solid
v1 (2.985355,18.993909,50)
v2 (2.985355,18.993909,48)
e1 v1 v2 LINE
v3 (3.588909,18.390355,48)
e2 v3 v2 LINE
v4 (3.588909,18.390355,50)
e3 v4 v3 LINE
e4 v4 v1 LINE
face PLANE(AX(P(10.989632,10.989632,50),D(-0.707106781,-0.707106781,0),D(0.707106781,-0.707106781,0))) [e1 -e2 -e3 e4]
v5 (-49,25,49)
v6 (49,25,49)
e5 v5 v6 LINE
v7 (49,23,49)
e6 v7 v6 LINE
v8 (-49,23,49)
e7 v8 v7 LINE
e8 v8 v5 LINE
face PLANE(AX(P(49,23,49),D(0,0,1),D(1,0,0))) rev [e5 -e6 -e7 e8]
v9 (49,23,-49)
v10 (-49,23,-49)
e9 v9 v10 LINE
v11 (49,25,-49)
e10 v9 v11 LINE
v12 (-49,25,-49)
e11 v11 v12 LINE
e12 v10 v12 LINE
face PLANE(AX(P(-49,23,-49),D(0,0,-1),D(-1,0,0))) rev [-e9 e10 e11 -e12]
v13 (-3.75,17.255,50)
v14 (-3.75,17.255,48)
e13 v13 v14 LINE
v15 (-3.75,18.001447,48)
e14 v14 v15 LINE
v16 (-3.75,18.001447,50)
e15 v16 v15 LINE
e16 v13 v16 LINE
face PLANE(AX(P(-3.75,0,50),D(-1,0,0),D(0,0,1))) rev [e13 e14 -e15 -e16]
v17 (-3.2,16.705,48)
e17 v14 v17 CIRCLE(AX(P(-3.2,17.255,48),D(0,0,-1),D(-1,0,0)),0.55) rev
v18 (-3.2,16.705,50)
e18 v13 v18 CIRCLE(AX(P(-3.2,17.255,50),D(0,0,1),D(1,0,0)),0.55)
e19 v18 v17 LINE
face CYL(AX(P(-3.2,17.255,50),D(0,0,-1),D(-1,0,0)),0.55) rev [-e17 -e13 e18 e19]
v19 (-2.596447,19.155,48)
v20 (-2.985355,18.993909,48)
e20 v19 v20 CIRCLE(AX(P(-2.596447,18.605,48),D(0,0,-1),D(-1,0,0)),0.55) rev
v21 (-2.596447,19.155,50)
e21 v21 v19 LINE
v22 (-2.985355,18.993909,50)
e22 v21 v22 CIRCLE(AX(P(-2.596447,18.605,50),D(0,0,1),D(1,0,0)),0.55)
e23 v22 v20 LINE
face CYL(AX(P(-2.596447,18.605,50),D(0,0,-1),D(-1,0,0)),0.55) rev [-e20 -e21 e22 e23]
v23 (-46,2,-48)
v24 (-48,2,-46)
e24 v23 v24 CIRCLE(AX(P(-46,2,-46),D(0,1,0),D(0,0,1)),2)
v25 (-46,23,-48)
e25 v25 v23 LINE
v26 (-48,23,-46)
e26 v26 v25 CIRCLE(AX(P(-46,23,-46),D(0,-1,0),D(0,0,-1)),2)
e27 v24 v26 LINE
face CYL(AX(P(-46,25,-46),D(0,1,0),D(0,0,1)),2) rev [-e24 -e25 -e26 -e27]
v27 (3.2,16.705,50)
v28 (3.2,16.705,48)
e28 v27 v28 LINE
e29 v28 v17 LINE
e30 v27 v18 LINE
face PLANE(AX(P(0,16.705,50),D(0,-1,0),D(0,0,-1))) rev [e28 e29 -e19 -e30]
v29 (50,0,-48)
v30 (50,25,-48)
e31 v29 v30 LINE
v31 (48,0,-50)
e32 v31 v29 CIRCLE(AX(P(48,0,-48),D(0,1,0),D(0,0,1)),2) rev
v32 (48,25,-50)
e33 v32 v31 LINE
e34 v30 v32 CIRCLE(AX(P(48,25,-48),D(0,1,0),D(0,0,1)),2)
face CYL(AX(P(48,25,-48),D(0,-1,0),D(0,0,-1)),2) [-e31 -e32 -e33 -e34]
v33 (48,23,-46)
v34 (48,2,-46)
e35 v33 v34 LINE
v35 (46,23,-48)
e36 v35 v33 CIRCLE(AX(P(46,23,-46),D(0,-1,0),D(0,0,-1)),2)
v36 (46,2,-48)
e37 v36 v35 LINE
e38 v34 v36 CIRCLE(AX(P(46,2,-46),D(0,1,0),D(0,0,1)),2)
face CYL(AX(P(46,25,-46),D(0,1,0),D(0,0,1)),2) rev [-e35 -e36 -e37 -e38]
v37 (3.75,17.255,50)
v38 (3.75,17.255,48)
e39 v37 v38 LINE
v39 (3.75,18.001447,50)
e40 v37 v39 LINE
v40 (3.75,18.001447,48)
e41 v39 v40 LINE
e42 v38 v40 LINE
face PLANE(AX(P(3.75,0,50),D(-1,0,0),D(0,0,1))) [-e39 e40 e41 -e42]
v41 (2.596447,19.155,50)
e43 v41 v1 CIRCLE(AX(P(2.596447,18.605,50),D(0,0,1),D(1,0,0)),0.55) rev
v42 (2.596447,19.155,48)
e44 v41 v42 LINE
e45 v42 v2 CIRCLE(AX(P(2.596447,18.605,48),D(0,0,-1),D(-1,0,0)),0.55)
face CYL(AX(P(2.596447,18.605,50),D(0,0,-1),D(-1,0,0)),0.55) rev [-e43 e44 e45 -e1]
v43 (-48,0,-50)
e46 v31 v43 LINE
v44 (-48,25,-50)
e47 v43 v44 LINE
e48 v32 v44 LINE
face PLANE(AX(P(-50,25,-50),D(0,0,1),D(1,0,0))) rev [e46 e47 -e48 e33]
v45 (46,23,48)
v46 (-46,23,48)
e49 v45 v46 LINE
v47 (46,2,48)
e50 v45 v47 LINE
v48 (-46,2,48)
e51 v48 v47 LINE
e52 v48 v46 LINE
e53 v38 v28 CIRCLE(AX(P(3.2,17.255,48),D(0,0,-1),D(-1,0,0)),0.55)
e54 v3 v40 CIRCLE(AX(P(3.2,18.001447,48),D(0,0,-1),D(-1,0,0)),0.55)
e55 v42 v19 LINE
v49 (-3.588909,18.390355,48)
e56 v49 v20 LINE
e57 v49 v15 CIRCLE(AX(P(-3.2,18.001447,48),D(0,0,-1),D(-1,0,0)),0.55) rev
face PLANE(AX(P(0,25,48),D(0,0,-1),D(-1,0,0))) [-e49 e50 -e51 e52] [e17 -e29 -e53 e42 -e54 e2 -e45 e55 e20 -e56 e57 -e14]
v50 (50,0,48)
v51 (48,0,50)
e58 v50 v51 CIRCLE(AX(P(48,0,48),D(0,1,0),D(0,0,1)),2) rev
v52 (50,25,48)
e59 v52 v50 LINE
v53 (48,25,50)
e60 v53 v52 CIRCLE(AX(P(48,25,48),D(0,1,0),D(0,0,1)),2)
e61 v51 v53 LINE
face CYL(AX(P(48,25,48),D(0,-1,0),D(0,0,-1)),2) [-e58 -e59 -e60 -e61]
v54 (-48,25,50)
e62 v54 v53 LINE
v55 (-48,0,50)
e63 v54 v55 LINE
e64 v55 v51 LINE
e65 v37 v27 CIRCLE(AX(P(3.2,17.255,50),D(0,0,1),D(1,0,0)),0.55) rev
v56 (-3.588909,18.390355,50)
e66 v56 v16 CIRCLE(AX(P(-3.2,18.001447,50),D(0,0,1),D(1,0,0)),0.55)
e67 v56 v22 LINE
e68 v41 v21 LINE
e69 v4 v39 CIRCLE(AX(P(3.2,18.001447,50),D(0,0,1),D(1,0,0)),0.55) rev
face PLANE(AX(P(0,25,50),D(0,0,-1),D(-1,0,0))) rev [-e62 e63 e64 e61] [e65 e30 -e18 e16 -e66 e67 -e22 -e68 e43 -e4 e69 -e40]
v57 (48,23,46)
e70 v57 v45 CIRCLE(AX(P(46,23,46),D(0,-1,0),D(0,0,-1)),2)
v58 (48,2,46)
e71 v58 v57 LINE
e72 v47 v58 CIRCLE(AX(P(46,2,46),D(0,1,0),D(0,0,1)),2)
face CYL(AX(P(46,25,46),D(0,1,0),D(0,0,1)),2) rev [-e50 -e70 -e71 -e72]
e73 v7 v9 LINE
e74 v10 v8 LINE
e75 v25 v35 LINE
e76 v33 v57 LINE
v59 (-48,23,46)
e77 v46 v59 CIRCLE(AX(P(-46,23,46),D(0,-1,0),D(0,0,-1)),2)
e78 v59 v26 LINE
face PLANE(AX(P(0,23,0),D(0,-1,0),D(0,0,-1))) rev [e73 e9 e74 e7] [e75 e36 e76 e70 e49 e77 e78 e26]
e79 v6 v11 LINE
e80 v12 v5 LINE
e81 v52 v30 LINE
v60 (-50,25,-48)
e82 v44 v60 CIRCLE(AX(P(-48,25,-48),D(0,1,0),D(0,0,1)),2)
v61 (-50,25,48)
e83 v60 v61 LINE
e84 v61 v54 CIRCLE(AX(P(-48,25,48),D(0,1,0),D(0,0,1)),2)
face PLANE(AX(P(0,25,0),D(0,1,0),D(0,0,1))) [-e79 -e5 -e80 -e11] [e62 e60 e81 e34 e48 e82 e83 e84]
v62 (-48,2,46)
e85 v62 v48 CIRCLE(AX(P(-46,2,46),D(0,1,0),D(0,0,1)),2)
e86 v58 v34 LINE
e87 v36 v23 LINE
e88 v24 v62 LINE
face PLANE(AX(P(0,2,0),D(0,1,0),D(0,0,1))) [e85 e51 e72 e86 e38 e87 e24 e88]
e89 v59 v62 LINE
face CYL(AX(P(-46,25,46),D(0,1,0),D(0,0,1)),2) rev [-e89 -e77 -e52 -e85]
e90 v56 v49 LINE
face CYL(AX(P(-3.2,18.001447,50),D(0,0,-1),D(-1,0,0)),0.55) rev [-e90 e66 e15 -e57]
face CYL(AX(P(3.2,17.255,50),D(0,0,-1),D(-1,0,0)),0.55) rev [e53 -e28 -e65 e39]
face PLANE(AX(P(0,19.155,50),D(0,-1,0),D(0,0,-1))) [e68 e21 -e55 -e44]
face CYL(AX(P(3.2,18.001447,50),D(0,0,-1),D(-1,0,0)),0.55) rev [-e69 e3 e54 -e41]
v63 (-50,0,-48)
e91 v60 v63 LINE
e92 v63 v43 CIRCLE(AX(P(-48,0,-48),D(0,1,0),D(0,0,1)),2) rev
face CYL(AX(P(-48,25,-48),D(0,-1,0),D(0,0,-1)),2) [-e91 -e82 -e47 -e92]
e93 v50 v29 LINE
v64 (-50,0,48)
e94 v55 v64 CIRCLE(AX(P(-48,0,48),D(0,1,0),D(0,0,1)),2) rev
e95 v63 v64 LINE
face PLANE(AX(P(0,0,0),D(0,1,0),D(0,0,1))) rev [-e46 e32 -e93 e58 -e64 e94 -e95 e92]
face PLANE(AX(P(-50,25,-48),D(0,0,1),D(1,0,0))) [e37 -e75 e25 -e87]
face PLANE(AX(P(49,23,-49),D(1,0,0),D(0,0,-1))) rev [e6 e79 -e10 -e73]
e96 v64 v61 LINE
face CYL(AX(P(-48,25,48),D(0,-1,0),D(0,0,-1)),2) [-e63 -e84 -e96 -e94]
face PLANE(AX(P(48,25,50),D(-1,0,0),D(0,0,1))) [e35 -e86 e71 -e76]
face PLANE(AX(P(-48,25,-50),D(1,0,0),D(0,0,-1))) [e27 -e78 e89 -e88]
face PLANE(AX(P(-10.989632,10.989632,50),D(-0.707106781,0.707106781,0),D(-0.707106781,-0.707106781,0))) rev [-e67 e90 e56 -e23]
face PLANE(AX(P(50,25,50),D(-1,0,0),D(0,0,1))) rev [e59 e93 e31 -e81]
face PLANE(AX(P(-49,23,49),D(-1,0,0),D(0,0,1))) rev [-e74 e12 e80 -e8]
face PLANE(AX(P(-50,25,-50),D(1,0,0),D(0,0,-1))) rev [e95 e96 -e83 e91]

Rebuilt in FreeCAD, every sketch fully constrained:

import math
import FreeCAD as App
import Part
import Sketcher
Q = App.Units.Quantity


def edges_at(feature, points):
    """Names of the edges that pass closest to the given points."""
    edges = feature.Shape.Edges
    near = lambda p: min(range(len(edges)), key=lambda i: edges[i].distToShape(Part.Vertex(*p))[0])
    return sorted({f"Edge{near(p) + 1}" for p in points})


def faces_at(feature, points):
    """Names of the faces that lie closest to the given points."""
    faces = feature.Shape.Faces
    near = lambda p: min(range(len(faces)), key=lambda i: faces[i].distToShape(Part.Vertex(*p))[0])
    return sorted({f"Face{near(p) + 1}" for p in points})


def add_polygon(sketch, points):
    """Adds a closed chain of lines whose ends are joined by coincident constraints."""
    first, n = sketch.GeometryCount, len(points)
    for a, b in zip(points, points[1:] + points[:1]):
        sketch.addGeometry(Part.LineSegment(App.Vector(*a, 0), App.Vector(*b, 0)), False)
    for i in range(n):
        sketch.addConstraint(Sketcher.Constraint("Coincident", first + i, 2, first + (i + 1) % n, 1))

doc = App.newDocument("Part")
body = doc.addObject("PartDesign::Body", "Body")

# Sketch on XZ plane
sketch1 = doc.addObject("Sketcher::SketchObject", "Sketch")
body.addObject(sketch1)
sketch1.AttachmentSupport = (doc.XZ_Plane, [""])
sketch1.MapMode = "FlatFace"
add_polygon(sketch1, [(50, 50), (50, -50), (-50, -50), (-50, 50)])  # lines 0-3
sketch1.addConstraint(Sketcher.Constraint("Vertical", 0))
sketch1.addConstraint(Sketcher.Constraint("Horizontal", 1))
sketch1.addConstraint(Sketcher.Constraint("Vertical", 2))
sketch1.addConstraint(Sketcher.Constraint("Horizontal", 3))
sketch1.addConstraint(Sketcher.Constraint("Symmetric", 0, 2, 2, 2, -1, 1))
sketch1.addConstraint(Sketcher.Constraint("Equal", 3, 0))
sketch1.addConstraint(Sketcher.Constraint("DistanceX", 1, 2, 1, 1, Q("100 mm")))
pad1 = doc.addObject("PartDesign::Pad", "Pad")
body.addObject(pad1)
pad1.Profile = sketch1
pad1.Length = 25
pad1.Reversed = True
doc.recompute()

thickness = doc.addObject("PartDesign::Thickness", "Thickness")
body.addObject(thickness)
thickness.Base = (pad1, faces_at(pad1, [(0, 25, 0)]))
thickness.Value = 2
thickness.Reversed = True
thickness.Join = "Intersection"

# Sketch on XY plane
sketch2 = doc.addObject("Sketcher::SketchObject", "Sketch001")
body.addObject(sketch2)
sketch2.AttachmentSupport = (doc.XY_Plane, [""])
sketch2.MapMode = "FlatFace"
sketch2.addGeometry(Part.ArcOfCircle(Part.Circle(App.Vector(3.2, 17.25, 0), App.Vector(0, 0, 1), 0.55), math.radians(-90), math.radians(0)), False)
sketch2.addGeometry(Part.LineSegment(App.Vector(3.75, 17.25, 0), App.Vector(3.75, 18, 0)), False)
sketch2.addGeometry(Part.ArcOfCircle(Part.Circle(App.Vector(3.2, 18, 0), App.Vector(0, 0, 1), 0.55), math.radians(0), math.radians(45)), False)
sketch2.addGeometry(Part.LineSegment(App.Vector(3.59, 18.39, 0), App.Vector(2.99, 18.99, 0)), False)
sketch2.addGeometry(Part.ArcOfCircle(Part.Circle(App.Vector(2.6, 18.6, 0), App.Vector(0, 0, 1), 0.55), math.radians(45), math.radians(90)), False)
sketch2.addGeometry(Part.LineSegment(App.Vector(2.6, 19.16, 0), App.Vector(-2.6, 19.16, 0)), False)
sketch2.addGeometry(Part.ArcOfCircle(Part.Circle(App.Vector(-2.6, 18.6, 0), App.Vector(0, 0, 1), 0.55), math.radians(90), math.radians(135)), False)
sketch2.addGeometry(Part.LineSegment(App.Vector(-2.99, 18.99, 0), App.Vector(-3.59, 18.39, 0)), False)
sketch2.addGeometry(Part.ArcOfCircle(Part.Circle(App.Vector(-3.2, 18, 0), App.Vector(0, 0, 1), 0.55), math.radians(135), math.radians(180)), False)
sketch2.addGeometry(Part.LineSegment(App.Vector(-3.75, 18, 0), App.Vector(-3.75, 17.25, 0)), False)
sketch2.addGeometry(Part.ArcOfCircle(Part.Circle(App.Vector(-3.2, 17.25, 0), App.Vector(0, 0, 1), 0.55), math.radians(180), math.radians(270)), False)
sketch2.addGeometry(Part.LineSegment(App.Vector(-3.2, 16.7, 0), App.Vector(3.2, 16.7, 0)), False)
sketch2.addConstraint(Sketcher.Constraint("Tangent", 0, 2, 1, 1))
sketch2.addConstraint(Sketcher.Constraint("Tangent", 1, 2, 2, 1))
sketch2.addConstraint(Sketcher.Constraint("Tangent", 2, 2, 3, 1))
sketch2.addConstraint(Sketcher.Constraint("Tangent", 3, 2, 4, 1))
sketch2.addConstraint(Sketcher.Constraint("Tangent", 4, 2, 5, 1))
sketch2.addConstraint(Sketcher.Constraint("Tangent", 5, 2, 6, 1))
sketch2.addConstraint(Sketcher.Constraint("Tangent", 6, 2, 7, 1))
sketch2.addConstraint(Sketcher.Constraint("Tangent", 7, 2, 8, 1))
sketch2.addConstraint(Sketcher.Constraint("Tangent", 8, 2, 9, 1))
sketch2.addConstraint(Sketcher.Constraint("Tangent", 9, 2, 10, 1))
sketch2.addConstraint(Sketcher.Constraint("Tangent", 10, 2, 11, 1))
sketch2.addConstraint(Sketcher.Constraint("Tangent", 11, 2, 0, 1))
sketch2.addConstraint(Sketcher.Constraint("Vertical", 1))
sketch2.addConstraint(Sketcher.Constraint("Horizontal", 5))
sketch2.addConstraint(Sketcher.Constraint("Vertical", 9))
sketch2.addConstraint(Sketcher.Constraint("Horizontal", 11))
sketch2.addConstraint(Sketcher.Constraint("Equal", 0, 2))
sketch2.addConstraint(Sketcher.Constraint("Equal", 2, 4))
sketch2.addConstraint(Sketcher.Constraint("Equal", 4, 6))
sketch2.addConstraint(Sketcher.Constraint("Equal", 6, 8))
sketch2.addConstraint(Sketcher.Constraint("Equal", 8, 10))
sketch2.addConstraint(Sketcher.Constraint("Symmetric", 2, 3, 8, 3, -2))
sketch2.addConstraint(Sketcher.Constraint("Perpendicular", 3, 7))
sketch2.addConstraint(Sketcher.Constraint("Horizontal", 3, 2, 6, 2))
sketch2.addConstraint(Sketcher.Constraint("Radius", 0, Q("0.55 mm")))
sketch2.addConstraint(Sketcher.Constraint("DistanceX", 11, 1, 11, 2, Q("6.4 mm")))
sketch2.addConstraint(Sketcher.Constraint("DistanceY", 10, 3, 5, 2, Q("1.9 mm")))
sketch2.addConstraint(Sketcher.Constraint("DistanceY", -1, 1, 0, 3, Q("17.255 mm")))
sketch2.addConstraint(Sketcher.Constraint("DistanceX", 6, 2, 4, 2, Q("5.581802 mm")))
pocket1 = doc.addObject("PartDesign::Pocket", "Pocket")
body.addObject(pocket1)
pocket1.Profile = sketch2
pocket1.Type = "ThroughAll"
pocket1.Reversed = True

# Sketch on XZ plane
sketch3 = doc.addObject("Sketcher::SketchObject", "Sketch002")
body.addObject(sketch3)
sketch3.AttachmentSupport = (doc.XZ_Plane, [""])
sketch3.MapMode = "FlatFace"
sketch3.AttachmentOffset = App.Placement(App.Vector(0, 0, -25), App.Rotation())
add_polygon(sketch3, [(-49, -49), (-49, 49), (49, 49), (49, -49)])  # lines 0-3
sketch3.addConstraint(Sketcher.Constraint("Vertical", 0))
sketch3.addConstraint(Sketcher.Constraint("Horizontal", 1))
sketch3.addConstraint(Sketcher.Constraint("Vertical", 2))
sketch3.addConstraint(Sketcher.Constraint("Horizontal", 3))
sketch3.addConstraint(Sketcher.Constraint("Symmetric", 0, 2, 2, 2, -1, 1))
sketch3.addConstraint(Sketcher.Constraint("Equal", 3, 0))
sketch3.addConstraint(Sketcher.Constraint("DistanceX", 1, 1, 1, 2, Q("98 mm")))
pocket2 = doc.addObject("PartDesign::Pocket", "Pocket001")
body.addObject(pocket2)
pocket2.Profile = sketch3
pocket2.Length = 2
pocket2.Reversed = True
doc.recompute()

fillet = doc.addObject("PartDesign::Fillet", "Fillet")
body.addObject(fillet)
fillet.Base = (pocket2, edges_at(pocket2, [
    (-50, 12.5, 50),
    (-50, 12.5, -50),
    (50, 12.5, -50),
    (50, 12.5, 50),
]))
fillet.Radius = 2
doc.recompute()

fillet2 = doc.addObject("PartDesign::Fillet", "Fillet001")
body.addObject(fillet2)
fillet2.Base = (fillet, edges_at(fillet, [
    (-48, 12.5, -48),
    (-48, 12.5, 48),
    (48, 12.5, -48),
    (48, 12.5, 48),
]))
fillet2.Radius = 2

doc.recompute()
